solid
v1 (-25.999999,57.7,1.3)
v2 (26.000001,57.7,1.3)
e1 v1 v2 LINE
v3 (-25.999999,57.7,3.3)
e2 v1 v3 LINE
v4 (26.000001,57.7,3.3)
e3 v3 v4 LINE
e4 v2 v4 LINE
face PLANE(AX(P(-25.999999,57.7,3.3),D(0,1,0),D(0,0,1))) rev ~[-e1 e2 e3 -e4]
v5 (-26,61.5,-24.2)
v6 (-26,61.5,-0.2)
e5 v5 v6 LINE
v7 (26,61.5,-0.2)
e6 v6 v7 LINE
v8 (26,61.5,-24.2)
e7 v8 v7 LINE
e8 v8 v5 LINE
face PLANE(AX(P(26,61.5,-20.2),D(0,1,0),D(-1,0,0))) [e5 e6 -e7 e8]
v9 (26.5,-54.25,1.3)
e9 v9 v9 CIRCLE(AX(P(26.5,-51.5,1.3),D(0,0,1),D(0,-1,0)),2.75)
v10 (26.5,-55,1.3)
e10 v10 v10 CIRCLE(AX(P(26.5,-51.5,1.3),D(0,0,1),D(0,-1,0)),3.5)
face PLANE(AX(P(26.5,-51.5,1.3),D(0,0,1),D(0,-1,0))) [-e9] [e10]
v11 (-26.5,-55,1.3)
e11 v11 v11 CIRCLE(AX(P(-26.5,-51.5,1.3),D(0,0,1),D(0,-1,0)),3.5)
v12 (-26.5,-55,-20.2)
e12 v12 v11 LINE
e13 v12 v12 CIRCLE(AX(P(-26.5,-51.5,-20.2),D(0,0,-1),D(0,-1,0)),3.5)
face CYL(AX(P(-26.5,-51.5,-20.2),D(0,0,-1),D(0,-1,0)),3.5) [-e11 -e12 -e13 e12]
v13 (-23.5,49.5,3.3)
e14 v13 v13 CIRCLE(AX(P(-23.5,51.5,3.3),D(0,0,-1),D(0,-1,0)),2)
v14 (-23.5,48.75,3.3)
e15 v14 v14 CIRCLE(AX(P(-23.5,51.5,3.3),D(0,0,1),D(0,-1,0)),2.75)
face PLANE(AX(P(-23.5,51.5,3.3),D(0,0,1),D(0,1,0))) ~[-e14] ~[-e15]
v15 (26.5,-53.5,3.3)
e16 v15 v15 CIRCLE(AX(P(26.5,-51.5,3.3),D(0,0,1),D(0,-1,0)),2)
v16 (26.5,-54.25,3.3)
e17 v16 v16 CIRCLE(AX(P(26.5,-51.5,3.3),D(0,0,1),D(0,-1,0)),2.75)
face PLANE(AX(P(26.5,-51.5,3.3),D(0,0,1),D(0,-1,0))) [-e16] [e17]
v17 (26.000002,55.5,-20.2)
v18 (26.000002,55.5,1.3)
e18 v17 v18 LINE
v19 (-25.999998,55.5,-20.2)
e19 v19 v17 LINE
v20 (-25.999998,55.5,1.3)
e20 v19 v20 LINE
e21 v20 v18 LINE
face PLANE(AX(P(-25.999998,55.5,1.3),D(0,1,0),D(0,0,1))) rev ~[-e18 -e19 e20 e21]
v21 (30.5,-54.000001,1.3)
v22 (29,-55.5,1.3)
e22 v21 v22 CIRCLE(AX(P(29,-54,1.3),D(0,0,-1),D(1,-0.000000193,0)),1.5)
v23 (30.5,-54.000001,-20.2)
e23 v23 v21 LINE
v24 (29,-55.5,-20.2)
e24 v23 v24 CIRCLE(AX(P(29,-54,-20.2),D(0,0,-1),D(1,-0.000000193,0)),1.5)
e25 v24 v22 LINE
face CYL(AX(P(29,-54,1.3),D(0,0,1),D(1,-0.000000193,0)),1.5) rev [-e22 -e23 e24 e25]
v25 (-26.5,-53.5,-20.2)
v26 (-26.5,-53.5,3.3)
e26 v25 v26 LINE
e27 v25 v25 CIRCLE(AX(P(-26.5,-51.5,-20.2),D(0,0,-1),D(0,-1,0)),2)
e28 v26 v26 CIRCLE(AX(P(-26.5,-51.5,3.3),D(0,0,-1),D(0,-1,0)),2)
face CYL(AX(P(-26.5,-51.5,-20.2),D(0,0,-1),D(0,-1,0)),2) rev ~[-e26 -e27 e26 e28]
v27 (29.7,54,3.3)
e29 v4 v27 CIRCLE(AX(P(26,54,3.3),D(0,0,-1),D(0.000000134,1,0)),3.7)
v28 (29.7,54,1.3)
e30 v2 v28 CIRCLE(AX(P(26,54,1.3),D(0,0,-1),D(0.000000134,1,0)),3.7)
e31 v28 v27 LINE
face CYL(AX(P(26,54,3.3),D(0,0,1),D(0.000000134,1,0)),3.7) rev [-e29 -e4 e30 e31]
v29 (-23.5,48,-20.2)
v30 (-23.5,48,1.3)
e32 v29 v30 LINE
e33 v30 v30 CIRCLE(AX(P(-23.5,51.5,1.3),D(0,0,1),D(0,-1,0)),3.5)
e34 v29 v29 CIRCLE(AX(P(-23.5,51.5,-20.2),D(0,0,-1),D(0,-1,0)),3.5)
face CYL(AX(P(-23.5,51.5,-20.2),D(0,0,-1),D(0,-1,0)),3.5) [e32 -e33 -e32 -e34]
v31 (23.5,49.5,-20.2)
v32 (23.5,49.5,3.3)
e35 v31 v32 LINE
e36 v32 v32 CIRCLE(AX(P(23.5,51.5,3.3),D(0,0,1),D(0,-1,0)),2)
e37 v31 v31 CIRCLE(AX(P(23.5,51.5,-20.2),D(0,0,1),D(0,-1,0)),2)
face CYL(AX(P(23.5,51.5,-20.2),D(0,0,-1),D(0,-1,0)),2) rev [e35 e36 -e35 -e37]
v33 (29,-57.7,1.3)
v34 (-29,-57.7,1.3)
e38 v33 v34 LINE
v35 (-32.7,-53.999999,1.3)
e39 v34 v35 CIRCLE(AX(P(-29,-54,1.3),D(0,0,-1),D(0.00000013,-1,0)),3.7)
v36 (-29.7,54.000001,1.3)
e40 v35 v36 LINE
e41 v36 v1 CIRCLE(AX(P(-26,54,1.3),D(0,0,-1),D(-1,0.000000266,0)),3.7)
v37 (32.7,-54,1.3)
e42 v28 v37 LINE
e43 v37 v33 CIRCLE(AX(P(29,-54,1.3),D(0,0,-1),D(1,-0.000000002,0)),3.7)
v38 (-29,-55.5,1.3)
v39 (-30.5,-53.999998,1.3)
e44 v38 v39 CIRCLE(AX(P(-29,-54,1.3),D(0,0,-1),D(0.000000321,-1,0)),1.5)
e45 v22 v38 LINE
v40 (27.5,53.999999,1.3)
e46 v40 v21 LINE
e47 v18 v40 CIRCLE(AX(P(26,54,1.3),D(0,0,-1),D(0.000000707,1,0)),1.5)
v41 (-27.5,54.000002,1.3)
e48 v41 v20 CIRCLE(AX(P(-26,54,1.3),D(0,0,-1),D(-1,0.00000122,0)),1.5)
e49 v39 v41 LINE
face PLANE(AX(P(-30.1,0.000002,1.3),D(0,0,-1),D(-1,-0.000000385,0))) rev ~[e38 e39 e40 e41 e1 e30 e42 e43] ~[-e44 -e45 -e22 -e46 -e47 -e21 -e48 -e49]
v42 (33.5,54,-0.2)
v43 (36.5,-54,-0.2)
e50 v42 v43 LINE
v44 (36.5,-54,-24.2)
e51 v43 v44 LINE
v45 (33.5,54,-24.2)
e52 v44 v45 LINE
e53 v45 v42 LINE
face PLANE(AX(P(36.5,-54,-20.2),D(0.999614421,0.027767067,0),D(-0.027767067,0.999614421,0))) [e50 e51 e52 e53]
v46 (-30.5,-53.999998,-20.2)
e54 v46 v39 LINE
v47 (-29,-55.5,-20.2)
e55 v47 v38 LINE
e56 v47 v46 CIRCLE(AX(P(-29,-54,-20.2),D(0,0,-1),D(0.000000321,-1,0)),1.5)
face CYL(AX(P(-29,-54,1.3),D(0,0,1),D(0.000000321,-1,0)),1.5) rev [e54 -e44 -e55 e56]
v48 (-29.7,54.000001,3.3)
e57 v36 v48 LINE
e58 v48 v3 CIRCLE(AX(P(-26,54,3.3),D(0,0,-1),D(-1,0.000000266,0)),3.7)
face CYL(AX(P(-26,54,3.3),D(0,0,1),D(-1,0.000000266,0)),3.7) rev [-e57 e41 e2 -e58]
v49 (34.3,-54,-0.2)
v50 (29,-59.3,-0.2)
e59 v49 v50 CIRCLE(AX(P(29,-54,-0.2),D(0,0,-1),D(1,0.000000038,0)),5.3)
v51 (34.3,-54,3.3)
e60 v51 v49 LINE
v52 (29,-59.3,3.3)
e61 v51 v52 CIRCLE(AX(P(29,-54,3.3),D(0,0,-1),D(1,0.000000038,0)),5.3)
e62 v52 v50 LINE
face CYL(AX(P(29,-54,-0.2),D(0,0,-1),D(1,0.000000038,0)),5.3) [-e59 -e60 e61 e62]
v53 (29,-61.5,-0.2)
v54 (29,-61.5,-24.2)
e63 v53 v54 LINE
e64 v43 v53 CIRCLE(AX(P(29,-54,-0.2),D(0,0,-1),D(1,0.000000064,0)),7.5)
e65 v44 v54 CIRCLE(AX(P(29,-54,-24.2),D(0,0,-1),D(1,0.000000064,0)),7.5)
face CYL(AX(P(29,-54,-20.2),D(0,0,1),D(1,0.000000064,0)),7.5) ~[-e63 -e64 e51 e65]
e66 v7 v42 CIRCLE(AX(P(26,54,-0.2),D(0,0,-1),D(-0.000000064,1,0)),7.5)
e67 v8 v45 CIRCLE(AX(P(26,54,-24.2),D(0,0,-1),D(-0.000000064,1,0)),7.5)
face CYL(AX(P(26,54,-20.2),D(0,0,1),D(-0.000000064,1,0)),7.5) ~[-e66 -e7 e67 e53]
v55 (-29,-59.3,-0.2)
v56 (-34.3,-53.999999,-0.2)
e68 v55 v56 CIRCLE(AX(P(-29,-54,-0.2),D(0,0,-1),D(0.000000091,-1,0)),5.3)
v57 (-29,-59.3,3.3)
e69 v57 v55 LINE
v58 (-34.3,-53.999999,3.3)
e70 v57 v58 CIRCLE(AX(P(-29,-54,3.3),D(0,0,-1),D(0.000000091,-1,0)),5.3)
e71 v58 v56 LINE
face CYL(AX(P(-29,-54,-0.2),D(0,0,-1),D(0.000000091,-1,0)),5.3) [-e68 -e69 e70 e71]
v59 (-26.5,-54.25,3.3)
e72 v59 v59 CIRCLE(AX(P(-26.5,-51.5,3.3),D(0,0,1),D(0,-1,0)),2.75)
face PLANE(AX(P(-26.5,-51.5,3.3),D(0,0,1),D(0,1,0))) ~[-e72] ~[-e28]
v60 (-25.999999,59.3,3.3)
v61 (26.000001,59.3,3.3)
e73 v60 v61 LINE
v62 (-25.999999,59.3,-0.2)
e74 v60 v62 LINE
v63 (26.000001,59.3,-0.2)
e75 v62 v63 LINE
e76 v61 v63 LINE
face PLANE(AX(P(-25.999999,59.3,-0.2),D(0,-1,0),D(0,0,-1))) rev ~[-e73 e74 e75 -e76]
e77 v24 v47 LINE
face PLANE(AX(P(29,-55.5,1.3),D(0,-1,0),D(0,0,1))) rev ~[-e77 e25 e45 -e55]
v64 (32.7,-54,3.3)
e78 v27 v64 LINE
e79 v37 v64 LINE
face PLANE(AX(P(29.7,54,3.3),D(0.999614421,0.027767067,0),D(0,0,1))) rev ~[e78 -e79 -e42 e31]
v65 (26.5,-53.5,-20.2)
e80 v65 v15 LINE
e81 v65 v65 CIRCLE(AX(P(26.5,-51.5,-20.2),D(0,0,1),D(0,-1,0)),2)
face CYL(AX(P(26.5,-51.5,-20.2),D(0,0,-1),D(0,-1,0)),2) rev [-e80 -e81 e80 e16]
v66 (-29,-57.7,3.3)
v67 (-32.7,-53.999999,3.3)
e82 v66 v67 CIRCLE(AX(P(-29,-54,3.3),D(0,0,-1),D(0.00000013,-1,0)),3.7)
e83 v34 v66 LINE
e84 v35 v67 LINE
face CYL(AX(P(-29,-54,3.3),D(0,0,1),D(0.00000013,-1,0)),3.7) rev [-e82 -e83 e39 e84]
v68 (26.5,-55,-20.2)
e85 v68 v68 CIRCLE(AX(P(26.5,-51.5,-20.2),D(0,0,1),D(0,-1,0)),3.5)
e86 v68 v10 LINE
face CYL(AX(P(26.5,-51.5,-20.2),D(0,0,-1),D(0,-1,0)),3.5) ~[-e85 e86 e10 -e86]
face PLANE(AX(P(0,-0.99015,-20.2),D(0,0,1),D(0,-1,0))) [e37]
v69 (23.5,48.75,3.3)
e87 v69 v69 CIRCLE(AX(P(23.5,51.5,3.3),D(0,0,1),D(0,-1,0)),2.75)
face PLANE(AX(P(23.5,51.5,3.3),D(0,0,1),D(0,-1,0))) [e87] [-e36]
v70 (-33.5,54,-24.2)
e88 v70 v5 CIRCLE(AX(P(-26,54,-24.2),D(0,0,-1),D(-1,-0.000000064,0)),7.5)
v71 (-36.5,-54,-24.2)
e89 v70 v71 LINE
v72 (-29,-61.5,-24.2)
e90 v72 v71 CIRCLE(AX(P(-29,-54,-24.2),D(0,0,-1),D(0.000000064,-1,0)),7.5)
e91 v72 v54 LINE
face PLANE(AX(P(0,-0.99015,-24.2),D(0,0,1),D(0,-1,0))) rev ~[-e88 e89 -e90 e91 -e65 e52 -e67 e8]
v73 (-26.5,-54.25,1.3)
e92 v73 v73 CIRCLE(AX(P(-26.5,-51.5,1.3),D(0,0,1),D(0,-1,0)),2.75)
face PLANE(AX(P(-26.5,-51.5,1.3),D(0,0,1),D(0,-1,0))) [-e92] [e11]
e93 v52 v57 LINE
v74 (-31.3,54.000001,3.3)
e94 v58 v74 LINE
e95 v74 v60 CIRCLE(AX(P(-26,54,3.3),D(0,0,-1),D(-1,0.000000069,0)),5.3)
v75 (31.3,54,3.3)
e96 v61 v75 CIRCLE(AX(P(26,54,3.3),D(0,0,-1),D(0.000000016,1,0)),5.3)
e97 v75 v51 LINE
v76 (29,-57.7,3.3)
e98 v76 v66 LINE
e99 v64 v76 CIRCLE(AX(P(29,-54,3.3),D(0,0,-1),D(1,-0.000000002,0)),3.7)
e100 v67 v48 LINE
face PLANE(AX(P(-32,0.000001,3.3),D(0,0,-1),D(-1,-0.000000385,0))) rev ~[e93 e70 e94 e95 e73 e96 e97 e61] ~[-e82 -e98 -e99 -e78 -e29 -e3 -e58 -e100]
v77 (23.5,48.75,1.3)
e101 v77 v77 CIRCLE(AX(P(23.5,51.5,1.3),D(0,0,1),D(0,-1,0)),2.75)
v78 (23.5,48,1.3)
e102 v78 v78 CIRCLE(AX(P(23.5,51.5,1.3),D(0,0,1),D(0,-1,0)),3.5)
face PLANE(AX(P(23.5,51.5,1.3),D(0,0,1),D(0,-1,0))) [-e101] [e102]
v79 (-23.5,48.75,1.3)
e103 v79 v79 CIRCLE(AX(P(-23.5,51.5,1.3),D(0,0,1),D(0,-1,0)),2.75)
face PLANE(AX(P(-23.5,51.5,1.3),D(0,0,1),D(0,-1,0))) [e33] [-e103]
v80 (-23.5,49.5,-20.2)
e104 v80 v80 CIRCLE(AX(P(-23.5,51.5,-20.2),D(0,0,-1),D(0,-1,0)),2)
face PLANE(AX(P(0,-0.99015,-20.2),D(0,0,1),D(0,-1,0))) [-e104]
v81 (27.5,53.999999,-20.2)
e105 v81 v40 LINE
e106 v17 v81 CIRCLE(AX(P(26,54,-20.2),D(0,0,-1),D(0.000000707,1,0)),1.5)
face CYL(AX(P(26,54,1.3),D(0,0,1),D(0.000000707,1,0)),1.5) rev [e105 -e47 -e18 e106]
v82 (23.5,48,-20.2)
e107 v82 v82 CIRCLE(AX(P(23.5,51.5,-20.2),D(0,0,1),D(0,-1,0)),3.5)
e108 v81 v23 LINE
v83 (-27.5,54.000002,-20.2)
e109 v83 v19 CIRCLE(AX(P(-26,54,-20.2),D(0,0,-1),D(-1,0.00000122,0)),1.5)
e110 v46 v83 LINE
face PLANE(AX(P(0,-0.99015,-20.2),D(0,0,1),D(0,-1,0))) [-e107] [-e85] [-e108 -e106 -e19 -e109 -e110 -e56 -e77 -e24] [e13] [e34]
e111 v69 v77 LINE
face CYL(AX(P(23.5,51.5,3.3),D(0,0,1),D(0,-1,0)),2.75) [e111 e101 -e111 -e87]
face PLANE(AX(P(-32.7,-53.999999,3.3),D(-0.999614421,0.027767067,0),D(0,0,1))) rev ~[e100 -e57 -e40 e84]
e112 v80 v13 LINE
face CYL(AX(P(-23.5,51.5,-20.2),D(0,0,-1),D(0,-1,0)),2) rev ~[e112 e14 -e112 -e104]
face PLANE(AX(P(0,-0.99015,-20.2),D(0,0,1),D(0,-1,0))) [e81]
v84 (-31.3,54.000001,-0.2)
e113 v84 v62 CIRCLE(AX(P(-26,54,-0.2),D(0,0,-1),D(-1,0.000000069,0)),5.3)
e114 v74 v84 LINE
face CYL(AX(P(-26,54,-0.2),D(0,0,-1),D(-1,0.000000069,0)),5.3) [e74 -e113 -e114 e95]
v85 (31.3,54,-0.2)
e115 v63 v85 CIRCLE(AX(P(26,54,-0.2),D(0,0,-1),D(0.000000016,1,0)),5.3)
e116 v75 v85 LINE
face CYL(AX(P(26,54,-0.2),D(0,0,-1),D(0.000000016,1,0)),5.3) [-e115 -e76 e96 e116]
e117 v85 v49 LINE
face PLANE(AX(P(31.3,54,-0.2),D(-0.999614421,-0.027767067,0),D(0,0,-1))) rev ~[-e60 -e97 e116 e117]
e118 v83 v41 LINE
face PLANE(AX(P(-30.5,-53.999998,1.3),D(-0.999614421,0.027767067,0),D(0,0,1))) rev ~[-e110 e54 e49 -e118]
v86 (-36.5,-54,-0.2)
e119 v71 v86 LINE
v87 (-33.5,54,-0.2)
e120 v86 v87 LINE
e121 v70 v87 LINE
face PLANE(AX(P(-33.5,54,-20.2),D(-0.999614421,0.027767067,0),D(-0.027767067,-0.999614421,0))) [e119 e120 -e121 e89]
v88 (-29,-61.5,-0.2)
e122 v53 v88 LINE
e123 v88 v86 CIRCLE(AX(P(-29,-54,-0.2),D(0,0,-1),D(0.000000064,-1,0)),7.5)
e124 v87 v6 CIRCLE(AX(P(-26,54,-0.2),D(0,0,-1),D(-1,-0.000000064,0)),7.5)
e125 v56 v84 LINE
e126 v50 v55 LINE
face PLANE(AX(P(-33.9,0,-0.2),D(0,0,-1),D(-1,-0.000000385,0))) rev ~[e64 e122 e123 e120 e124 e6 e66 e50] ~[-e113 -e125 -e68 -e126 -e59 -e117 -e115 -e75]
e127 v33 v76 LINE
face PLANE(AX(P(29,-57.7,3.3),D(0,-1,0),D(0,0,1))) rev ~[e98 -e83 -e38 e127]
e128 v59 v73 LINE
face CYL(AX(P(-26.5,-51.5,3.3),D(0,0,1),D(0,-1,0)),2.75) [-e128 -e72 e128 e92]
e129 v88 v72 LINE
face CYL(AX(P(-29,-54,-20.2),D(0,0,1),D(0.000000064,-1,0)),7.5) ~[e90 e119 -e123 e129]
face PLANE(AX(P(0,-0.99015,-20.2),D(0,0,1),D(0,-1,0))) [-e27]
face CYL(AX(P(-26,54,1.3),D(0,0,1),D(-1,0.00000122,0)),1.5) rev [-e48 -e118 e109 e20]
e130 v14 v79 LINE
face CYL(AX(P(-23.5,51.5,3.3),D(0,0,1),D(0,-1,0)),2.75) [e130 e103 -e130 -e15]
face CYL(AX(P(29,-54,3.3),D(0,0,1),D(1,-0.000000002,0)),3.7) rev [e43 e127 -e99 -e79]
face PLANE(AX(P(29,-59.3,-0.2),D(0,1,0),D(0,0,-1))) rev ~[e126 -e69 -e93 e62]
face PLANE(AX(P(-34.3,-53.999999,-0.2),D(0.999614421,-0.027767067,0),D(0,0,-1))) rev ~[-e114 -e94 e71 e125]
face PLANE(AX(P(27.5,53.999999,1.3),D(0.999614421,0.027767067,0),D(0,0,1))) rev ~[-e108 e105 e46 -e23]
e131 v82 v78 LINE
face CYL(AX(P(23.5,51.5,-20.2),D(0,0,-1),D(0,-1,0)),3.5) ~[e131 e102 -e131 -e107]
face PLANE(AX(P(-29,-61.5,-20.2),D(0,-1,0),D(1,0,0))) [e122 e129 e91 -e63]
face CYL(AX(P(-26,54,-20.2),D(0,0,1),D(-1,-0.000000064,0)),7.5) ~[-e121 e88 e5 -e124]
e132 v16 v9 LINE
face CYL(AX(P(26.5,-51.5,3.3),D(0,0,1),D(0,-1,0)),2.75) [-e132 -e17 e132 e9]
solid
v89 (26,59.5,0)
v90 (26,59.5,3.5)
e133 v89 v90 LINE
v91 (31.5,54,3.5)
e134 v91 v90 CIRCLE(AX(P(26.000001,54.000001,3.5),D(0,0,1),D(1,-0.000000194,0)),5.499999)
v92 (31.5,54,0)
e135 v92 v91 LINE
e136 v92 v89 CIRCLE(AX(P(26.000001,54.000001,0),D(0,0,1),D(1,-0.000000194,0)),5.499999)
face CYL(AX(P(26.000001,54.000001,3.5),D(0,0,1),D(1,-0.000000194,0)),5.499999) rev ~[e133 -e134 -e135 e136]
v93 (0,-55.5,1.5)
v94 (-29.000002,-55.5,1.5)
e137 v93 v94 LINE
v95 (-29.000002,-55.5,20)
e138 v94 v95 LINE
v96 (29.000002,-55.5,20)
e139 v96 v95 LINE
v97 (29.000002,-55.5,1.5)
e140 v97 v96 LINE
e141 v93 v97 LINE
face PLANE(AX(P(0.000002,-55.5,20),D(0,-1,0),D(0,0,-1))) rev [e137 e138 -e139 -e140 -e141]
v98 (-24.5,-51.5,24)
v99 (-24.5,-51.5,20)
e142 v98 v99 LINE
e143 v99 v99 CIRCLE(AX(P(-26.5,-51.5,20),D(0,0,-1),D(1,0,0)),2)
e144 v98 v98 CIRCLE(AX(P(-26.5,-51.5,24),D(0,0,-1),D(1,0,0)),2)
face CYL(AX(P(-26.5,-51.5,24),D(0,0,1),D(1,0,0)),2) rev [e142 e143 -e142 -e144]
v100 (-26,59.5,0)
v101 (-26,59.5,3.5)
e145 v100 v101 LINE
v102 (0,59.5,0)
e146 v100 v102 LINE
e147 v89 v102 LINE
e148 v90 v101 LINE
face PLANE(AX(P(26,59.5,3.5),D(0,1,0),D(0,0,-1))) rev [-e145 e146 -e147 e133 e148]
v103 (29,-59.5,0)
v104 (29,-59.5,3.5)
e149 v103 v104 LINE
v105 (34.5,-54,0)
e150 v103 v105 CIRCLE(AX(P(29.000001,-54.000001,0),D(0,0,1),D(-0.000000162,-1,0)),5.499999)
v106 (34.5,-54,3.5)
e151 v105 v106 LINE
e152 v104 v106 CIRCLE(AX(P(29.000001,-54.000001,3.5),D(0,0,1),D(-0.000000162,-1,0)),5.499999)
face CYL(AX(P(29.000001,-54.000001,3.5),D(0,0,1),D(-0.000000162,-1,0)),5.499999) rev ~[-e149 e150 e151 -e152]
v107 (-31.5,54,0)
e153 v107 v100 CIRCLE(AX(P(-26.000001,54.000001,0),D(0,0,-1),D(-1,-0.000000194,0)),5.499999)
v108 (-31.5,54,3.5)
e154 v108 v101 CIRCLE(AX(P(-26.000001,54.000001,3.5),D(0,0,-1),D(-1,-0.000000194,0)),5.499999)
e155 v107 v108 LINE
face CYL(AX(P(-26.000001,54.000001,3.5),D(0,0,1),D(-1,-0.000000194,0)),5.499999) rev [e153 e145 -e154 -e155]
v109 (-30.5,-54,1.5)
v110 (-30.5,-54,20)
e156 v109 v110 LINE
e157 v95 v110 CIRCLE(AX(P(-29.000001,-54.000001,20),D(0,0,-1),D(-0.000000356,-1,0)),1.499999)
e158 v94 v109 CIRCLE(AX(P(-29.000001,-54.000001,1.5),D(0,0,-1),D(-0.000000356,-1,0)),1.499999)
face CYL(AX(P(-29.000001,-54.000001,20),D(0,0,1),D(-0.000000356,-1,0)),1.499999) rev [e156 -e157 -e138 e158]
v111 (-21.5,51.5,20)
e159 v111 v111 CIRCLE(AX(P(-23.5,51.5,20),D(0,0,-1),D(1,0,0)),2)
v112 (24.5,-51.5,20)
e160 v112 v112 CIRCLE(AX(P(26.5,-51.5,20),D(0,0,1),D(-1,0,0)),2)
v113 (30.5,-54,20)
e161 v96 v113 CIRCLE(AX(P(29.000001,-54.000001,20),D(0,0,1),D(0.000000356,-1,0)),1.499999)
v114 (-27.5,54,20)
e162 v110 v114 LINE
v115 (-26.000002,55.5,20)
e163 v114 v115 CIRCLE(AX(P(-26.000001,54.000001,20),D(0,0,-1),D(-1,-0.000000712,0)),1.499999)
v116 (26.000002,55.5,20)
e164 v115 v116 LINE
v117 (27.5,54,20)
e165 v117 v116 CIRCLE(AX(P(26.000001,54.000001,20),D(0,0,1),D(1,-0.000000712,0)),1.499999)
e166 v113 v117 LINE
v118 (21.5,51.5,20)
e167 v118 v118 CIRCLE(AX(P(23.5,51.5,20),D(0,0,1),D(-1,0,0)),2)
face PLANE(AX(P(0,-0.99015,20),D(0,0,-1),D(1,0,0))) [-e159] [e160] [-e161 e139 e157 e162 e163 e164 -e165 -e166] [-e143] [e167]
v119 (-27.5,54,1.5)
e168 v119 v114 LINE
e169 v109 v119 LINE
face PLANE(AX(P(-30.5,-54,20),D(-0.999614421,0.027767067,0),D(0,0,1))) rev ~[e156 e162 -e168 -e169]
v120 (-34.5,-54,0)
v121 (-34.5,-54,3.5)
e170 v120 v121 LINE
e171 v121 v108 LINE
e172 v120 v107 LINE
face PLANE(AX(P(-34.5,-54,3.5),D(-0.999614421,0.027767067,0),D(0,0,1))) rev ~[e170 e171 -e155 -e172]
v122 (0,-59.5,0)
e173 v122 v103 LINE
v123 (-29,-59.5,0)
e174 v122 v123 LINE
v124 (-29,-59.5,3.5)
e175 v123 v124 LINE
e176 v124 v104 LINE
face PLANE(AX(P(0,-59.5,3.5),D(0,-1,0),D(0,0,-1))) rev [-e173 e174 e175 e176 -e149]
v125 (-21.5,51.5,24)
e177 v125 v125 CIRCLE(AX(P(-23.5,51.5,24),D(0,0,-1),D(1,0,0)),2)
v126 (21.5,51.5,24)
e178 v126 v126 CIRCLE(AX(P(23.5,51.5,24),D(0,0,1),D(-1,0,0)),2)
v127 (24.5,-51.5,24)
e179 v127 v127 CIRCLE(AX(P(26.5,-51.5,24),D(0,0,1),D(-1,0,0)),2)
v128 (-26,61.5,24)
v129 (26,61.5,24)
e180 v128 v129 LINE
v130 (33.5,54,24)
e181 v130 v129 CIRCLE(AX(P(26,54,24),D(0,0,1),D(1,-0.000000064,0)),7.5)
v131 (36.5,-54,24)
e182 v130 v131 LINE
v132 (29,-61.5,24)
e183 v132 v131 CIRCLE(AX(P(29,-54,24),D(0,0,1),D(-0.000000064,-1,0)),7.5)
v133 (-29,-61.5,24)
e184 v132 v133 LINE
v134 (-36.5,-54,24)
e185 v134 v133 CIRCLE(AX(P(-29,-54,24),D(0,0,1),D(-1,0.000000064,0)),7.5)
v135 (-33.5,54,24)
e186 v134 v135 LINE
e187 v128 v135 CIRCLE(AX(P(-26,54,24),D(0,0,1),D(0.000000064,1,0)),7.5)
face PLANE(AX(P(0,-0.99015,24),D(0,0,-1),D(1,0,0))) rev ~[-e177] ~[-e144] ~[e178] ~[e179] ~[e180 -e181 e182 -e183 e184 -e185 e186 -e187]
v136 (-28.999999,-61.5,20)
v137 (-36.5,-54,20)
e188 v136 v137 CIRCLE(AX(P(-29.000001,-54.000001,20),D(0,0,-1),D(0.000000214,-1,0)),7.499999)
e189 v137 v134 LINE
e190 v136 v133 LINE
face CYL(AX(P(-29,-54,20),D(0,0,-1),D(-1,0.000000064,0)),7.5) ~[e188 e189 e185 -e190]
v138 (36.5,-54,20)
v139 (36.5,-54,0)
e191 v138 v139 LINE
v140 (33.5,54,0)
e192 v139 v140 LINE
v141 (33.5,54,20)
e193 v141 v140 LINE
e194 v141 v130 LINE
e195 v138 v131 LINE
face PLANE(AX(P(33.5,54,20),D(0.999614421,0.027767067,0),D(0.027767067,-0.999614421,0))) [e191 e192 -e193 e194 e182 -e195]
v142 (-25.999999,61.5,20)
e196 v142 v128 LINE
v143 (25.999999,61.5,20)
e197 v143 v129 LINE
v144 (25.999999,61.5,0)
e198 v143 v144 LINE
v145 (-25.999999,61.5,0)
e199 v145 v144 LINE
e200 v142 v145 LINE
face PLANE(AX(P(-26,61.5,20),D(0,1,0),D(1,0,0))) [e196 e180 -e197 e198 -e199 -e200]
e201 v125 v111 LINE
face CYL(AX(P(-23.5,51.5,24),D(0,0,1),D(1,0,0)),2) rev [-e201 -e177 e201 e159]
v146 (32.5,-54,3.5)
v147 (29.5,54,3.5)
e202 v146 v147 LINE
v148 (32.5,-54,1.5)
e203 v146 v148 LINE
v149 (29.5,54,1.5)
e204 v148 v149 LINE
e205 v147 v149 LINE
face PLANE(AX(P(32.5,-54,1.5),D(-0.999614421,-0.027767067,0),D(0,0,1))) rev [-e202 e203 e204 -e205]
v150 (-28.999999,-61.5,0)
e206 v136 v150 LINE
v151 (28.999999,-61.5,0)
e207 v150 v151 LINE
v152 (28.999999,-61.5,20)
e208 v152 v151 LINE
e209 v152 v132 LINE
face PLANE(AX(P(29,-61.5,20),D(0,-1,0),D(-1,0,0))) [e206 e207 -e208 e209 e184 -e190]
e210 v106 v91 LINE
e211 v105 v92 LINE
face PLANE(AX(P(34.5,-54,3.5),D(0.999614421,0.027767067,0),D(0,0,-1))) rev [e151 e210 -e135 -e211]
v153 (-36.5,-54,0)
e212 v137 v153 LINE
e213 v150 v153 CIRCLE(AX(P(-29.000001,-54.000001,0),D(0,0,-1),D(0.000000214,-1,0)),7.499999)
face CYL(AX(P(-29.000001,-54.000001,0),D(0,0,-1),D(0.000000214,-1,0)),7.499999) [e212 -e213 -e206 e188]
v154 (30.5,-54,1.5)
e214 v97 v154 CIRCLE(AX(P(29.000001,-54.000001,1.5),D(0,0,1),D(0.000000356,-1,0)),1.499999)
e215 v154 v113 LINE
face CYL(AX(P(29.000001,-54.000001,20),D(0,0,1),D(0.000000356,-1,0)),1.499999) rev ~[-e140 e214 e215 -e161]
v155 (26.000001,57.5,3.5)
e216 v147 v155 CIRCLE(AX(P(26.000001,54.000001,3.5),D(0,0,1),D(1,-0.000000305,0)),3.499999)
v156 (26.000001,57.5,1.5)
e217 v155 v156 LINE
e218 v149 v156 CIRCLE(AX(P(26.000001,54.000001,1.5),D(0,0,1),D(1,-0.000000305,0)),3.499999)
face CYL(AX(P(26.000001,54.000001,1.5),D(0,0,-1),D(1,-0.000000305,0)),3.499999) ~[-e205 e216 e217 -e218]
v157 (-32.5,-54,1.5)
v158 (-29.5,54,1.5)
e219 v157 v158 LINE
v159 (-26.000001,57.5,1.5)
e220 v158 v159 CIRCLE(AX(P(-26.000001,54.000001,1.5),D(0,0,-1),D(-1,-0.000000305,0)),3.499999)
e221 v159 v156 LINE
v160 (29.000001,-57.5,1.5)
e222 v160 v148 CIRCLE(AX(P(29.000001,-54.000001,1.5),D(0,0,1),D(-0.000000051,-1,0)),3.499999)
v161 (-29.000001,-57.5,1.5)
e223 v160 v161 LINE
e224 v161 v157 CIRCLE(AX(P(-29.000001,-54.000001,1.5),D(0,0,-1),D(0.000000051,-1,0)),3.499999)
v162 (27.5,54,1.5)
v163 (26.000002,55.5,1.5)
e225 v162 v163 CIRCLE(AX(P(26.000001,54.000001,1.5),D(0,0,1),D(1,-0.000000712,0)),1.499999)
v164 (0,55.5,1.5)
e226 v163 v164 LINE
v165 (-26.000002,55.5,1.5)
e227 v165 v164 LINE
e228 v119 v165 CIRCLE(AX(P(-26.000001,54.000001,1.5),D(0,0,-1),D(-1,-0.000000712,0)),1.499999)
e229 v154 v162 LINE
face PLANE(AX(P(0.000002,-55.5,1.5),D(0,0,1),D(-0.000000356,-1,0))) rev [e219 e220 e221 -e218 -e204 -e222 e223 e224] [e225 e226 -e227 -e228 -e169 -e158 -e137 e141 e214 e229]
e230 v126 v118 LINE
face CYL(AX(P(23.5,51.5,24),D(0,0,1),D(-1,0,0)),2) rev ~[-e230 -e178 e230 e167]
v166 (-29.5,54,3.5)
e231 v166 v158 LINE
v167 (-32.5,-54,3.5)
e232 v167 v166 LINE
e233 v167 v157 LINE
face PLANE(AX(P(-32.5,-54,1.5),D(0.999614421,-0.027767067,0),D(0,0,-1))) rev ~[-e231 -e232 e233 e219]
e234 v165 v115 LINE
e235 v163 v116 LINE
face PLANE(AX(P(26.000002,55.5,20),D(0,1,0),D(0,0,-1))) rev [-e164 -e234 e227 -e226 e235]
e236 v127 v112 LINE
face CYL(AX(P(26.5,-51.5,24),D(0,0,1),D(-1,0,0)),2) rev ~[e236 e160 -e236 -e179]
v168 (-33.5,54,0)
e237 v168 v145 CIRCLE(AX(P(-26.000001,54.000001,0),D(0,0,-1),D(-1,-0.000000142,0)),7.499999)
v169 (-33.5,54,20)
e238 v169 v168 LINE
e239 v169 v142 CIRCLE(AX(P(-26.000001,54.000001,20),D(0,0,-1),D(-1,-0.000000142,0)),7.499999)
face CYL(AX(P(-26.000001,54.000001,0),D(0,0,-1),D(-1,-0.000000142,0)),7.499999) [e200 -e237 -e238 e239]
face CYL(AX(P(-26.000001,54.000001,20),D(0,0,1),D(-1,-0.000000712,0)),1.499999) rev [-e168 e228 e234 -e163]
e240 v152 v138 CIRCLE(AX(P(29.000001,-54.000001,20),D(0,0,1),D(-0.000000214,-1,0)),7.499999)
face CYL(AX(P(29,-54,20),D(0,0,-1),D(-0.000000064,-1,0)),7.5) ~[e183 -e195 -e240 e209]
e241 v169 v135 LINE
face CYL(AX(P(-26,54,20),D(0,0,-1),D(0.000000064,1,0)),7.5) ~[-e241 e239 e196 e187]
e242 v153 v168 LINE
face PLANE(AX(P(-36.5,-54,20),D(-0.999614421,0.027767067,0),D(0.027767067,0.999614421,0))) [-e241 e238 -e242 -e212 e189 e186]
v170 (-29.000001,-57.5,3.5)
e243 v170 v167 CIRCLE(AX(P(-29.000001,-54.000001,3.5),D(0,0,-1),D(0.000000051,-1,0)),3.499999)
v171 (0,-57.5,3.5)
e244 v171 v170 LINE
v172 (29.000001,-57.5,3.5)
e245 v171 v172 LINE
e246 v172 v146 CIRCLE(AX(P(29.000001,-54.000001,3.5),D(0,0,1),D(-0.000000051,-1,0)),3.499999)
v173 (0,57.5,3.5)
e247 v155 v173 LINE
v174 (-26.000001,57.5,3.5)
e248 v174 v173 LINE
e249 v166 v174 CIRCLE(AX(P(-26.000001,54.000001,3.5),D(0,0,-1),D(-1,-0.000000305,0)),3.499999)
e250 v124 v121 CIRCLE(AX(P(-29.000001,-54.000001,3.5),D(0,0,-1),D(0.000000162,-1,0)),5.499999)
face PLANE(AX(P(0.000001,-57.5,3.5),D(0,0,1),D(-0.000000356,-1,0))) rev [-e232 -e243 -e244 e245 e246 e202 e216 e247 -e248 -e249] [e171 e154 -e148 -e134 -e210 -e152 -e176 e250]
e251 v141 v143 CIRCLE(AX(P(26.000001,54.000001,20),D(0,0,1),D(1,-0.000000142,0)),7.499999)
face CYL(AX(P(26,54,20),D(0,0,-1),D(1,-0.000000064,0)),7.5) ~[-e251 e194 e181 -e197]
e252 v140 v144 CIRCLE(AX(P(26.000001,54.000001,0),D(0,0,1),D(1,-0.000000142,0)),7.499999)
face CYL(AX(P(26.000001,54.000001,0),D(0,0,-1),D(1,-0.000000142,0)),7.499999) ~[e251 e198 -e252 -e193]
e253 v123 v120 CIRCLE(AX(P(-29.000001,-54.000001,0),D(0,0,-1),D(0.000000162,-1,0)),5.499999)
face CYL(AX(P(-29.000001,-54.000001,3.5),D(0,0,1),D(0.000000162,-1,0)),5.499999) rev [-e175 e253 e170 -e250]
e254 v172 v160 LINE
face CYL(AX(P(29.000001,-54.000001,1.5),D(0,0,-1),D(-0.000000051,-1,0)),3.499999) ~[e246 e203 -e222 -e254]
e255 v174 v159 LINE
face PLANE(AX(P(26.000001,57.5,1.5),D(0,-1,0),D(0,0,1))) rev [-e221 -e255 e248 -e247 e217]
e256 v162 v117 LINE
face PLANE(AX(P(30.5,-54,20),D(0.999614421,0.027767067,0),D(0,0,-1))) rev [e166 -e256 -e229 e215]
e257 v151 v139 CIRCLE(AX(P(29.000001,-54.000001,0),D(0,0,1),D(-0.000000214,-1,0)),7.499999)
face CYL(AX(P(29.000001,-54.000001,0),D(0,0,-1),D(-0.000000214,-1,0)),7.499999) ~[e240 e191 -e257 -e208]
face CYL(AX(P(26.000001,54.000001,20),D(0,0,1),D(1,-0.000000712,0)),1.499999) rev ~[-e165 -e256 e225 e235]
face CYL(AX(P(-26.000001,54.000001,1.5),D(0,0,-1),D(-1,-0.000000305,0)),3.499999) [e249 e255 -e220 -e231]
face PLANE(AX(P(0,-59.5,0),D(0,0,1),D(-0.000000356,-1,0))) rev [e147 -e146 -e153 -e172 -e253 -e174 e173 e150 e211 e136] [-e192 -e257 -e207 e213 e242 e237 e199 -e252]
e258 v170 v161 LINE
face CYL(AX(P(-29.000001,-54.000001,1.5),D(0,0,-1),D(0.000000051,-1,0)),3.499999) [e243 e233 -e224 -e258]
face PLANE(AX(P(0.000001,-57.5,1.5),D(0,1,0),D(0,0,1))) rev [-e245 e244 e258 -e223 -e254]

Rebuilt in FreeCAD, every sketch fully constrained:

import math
import FreeCAD as App
import Part
import Sketcher
from FreeCAD import Vector
Q = App.Units.Quantity

doc = App.newDocument("Part")
params = doc.addObject("Spreadsheet::Sheet", "Params")
for row, (alias, value) in enumerate([
    ("sketch1_width", "2 mm"),
    ("sketch1_height", "20 mm"),
    ("sketch1_height2", "3.5 mm"),
    ("sketch2_radius", "5.999999 mm"),
    ("sketch2_width", "29 mm"),
    ("sketch2_width2", "26 mm"),
    ("sketch3_radius", "7.5 mm"),
    ("sketch3_width", "52 mm"),
    ("sketch3_width2", "58 mm"),
    ("pad1_length", "4 mm"),
    ("sketch4_diameter", "4 mm"),
    ("pocket1_length", "4 mm"),
    ("sketch5_width", "6 mm"),
    ("sketch5_height", "20 mm"),
    ("sketch5_height2", "2 mm"),
    ("sketch5_width2", "2.2 mm"),
    ("sketch5_height3", "21.5 mm"),
    ("sketch6_radius", "7.5 mm"),
    ("sketch6_width", "52 mm"),
    ("sketch6_width2", "58 mm"),
    ("sketch7_radius", "7.5 mm"),
    ("sketch7_width", "58 mm"),
    ("sketch7_width2", "52 mm"),
    ("pad2_length", "4 mm"),
    ("sketch8_diameter", "7 mm"),
    ("sketch8_diameter2", "4 mm"),
    ("pad3_length", "23.5 mm"),
    ("sketch9_diameter", "7 mm"),
    ("sketch9_diameter2", "5.5 mm"),
    ("pocket2_length", "2 mm"),
], start=1):
    params.set(f"A{row}", alias)
    params.set(f"B{row}", "=" + value)
    params.setAlias(f"B{row}", alias)

body = doc.addObject("PartDesign::Body", "Body")

# Sketch on XZ plane
sketch1 = body.newObject("Sketcher::SketchObject", "Sketch")
sketch1.AttachmentSupport = (doc.getObject("XZ_Plane"), [""])
sketch1.MapMode = "FlatFace"
sketch1.addGeometry(Part.LineSegment(Vector(-35, 20, 0), Vector(-35, 0, 0)), False)
sketch1.addGeometry(Part.LineSegment(Vector(-35, 0, 0), Vector(-33, 0, 0)), False)
sketch1.addGeometry(Part.LineSegment(Vector(-33, 0, 0), Vector(-33, 3.5, 0)), False)
sketch1.addGeometry(Part.LineSegment(Vector(-33, 3.5, 0), Vector(-31, 3.5, 0)), False)
sketch1.addGeometry(Part.LineSegment(Vector(-31, 3.5, 0), Vector(-31, 1.5, 0)), False)
sketch1.addGeometry(Part.LineSegment(Vector(-31, 1.5, 0), Vector(-29, 1.5, 0)), False)
sketch1.addGeometry(Part.LineSegment(Vector(-29, 1.5, 0), Vector(-29, 20, 0)), False)
sketch1.addGeometry(Part.LineSegment(Vector(-29, 20, 0), Vector(-35, 20, 0)), False)
sketch1.addConstraint(Sketcher.Constraint("Coincident", 0, 2, 1, 1))
sketch1.addConstraint(Sketcher.Constraint("Coincident", 1, 2, 2, 1))
sketch1.addConstraint(Sketcher.Constraint("Coincident", 2, 2, 3, 1))
sketch1.addConstraint(Sketcher.Constraint("Coincident", 3, 2, 4, 1))
sketch1.addConstraint(Sketcher.Constraint("Coincident", 4, 2, 5, 1))
sketch1.addConstraint(Sketcher.Constraint("Coincident", 5, 2, 6, 1))
sketch1.addConstraint(Sketcher.Constraint("Coincident", 6, 2, 7, 1))
sketch1.addConstraint(Sketcher.Constraint("Coincident", 7, 2, 0, 1))
sketch1.addConstraint(Sketcher.Constraint("Vertical", 0))
sketch1.addConstraint(Sketcher.Constraint("Horizontal", 1))
sketch1.addConstraint(Sketcher.Constraint("Vertical", 2))
sketch1.addConstraint(Sketcher.Constraint("Horizontal", 3))
sketch1.addConstraint(Sketcher.Constraint("Vertical", 4))
sketch1.addConstraint(Sketcher.Constraint("Horizontal", 5))
sketch1.addConstraint(Sketcher.Constraint("Vertical", 6))
sketch1.addConstraint(Sketcher.Constraint("Horizontal", 7))
sketch1.addConstraint(Sketcher.Constraint("PointOnObject", 0, 2, -1))
sketch1.addConstraint(Sketcher.Constraint("Equal", 1, 3))
sketch1.addConstraint(Sketcher.Constraint("Equal", 3, 5))
sketch1.addConstraint(Sketcher.Constraint("Equal", 5, 4))
sketch1.addConstraint(Sketcher.Constraint("DistanceX", 1, 1, 1, 2, Q("2 mm")))
sketch1.addConstraint(Sketcher.Constraint("DistanceY", 0, 2, 0, 1, Q("20 mm")))
sketch1.addConstraint(Sketcher.Constraint("DistanceY", 2, 1, 2, 2, Q("3.5 mm")))
sketch1.addConstraint(Sketcher.Constraint("DistanceX", 0, 2, -1, 1, Q("35 mm")))
sketch1.setExpression("Constraints[20]", "Params.sketch1_width")
sketch1.setExpression("Constraints[21]", "Params.sketch1_height")
sketch1.setExpression("Constraints[22]", "Params.sketch1_height2")

# Sketch on XY plane
sketch2 = body.newObject("Sketcher::SketchObject", "Sketch001")
sketch2.AttachmentSupport = (doc.getObject("XY_Plane"), [""])
sketch2.MapMode = "FlatFace"
sketch2.addGeometry(Part.LineSegment(Vector(0, -60, 0), Vector(-29, -60, 0)), False)
sketch2.addGeometry(Part.ArcOfCircle(Part.Circle(Vector(-29, -54, 0), Vector(0, 0, 1), 6), math.radians(180), math.radians(270)), False)
sketch2.addGeometry(Part.LineSegment(Vector(-35, -54, 0), Vector(-32, 54, 0)), False)
sketch2.addGeometry(Part.ArcOfCircle(Part.Circle(Vector(-26, 54, 0), Vector(0, 0, 1), 6), math.radians(90), math.radians(180)), False)
sketch2.addGeometry(Part.LineSegment(Vector(-26, 60, 0), Vector(0, 60, 0)), False)
sketch2.addConstraint(Sketcher.Constraint("Tangent", 0, 2, 1, 2))
sketch2.addConstraint(Sketcher.Constraint("Coincident", 1, 1, 2, 1))
sketch2.addConstraint(Sketcher.Constraint("Coincident", 2, 2, 3, 2))
sketch2.addConstraint(Sketcher.Constraint("Tangent", 3, 1, 4, 1))
sketch2.addConstraint(Sketcher.Constraint("Horizontal", 0))
sketch2.addConstraint(Sketcher.Constraint("Horizontal", 4))
sketch2.addConstraint(Sketcher.Constraint("Equal", 1, 3))
sketch2.addConstraint(Sketcher.Constraint("Symmetric", 0, 1, 4, 2, -1, 1))
sketch2.addConstraint(Sketcher.Constraint("PointOnObject", 0, 1, -2))
sketch2.addConstraint(Sketcher.Constraint("Horizontal", 3, 3, 2, 2))
sketch2.addConstraint(Sketcher.Constraint("Radius", 1, Q("5.999999 mm")))
sketch2.addConstraint(Sketcher.Constraint("DistanceX", 0, 2, 0, 1, Q("29 mm")))
sketch2.addConstraint(Sketcher.Constraint("DistanceX", 4, 1, 4, 2, Q("26 mm")))
sketch2.addConstraint(Sketcher.Constraint("DistanceY", 1, 3, -1, 1, Q("54.000001 mm")))
sketch2.addConstraint(Sketcher.Constraint("DistanceY", 1, 1, -1, 1, Q("54 mm")))
sketch2.setExpression("Constraints[10]", "Params.sketch2_radius")
sketch2.setExpression("Constraints[11]", "Params.sketch2_width")
sketch2.setExpression("Constraints[12]", "Params.sketch2_width2")
doc.recompute()

additivepipe = body.newObject("PartDesign::AdditivePipe", "AdditivePipe")
additivepipe.Profile = sketch1
additivepipe.Spine = (sketch2, ["Edge1", "Edge2", "Edge3", "Edge4", "Edge5"])
doc.recompute()

mirrored = body.newObject("PartDesign::Mirrored", "Mirrored")
mirrored.Originals = [additivepipe]
mirrored.MirrorPlane = (doc.getObject("YZ_Plane"), [""])
body.Tip = mirrored

# Sketch on XY plane
sketch3 = body.newObject("Sketcher::SketchObject", "Sketch002")
sketch3.AttachmentSupport = (doc.getObject("XY_Plane"), [""])
sketch3.MapMode = "FlatFace"
sketch3.AttachmentOffset = App.Placement(Vector(0, 0, 20), App.Rotation())
sketch3.addGeometry(Part.LineSegment(Vector(36, -54, 0), Vector(34, 54, 0)), False)
sketch3.addGeometry(Part.ArcOfCircle(Part.Circle(Vector(26, 54, 0), Vector(0, 0, 1), 7), math.radians(0), math.radians(90)), False)
sketch3.addGeometry(Part.LineSegment(Vector(26, 62, 0), Vector(-26, 62, 0)), False)
sketch3.addGeometry(Part.ArcOfCircle(Part.Circle(Vector(-26, 54, 0), Vector(0, 0, 1), 7), math.radians(90), math.radians(180)), False)
sketch3.addGeometry(Part.LineSegment(Vector(-34, 54, 0), Vector(-36, -54, 0)), False)
sketch3.addGeometry(Part.ArcOfCircle(Part.Circle(Vector(-29, -54, 0), Vector(0, 0, 1), 7), math.radians(180), math.radians(270)), False)
sketch3.addGeometry(Part.LineSegment(Vector(-29, -62, 0), Vector(29, -62, 0)), False)
sketch3.addGeometry(Part.ArcOfCircle(Part.Circle(Vector(29, -54, 0), Vector(0, 0, 1), 7), math.radians(-90), math.radians(0)), False)
sketch3.addConstraint(Sketcher.Constraint("Coincident", 0, 2, 1, 1))
sketch3.addConstraint(Sketcher.Constraint("Tangent", 1, 2, 2, 1))
sketch3.addConstraint(Sketcher.Constraint("Tangent", 2, 2, 3, 1))
sketch3.addConstraint(Sketcher.Constraint("Coincident", 3, 2, 4, 1))
sketch3.addConstraint(Sketcher.Constraint("Coincident", 4, 2, 5, 1))
sketch3.addConstraint(Sketcher.Constraint("Tangent", 5, 2, 6, 1))
sketch3.addConstraint(Sketcher.Constraint("Tangent", 6, 2, 7, 1))
sketch3.addConstraint(Sketcher.Constraint("Coincident", 7, 2, 0, 1))
sketch3.addConstraint(Sketcher.Constraint("Horizontal", 2))
sketch3.addConstraint(Sketcher.Constraint("Horizontal", 6))
sketch3.addConstraint(Sketcher.Constraint("Equal", 1, 3))
sketch3.addConstraint(Sketcher.Constraint("Equal", 3, 5))
sketch3.addConstraint(Sketcher.Constraint("Equal", 5, 7))
sketch3.addConstraint(Sketcher.Constraint("Symmetric", 0, 2, 3, 2, -2))
sketch3.addConstraint(Sketcher.Constraint("Symmetric", 4, 2, 7, 2, -2))
sketch3.addConstraint(Sketcher.Constraint("Horizontal", 3, 3, 0, 2))
sketch3.addConstraint(Sketcher.Constraint("Horizontal", 7, 3, 4, 2))
sketch3.addConstraint(Sketcher.Constraint("Radius", 1, Q("7.5 mm")))
sketch3.addConstraint(Sketcher.Constraint("DistanceX", 2, 2, 2, 1, Q("52 mm")))
sketch3.addConstraint(Sketcher.Constraint("DistanceX", 6, 1, 6, 2, Q("58 mm")))
sketch3.addConstraint(Sketcher.Constraint("DistanceY", -1, 1, 1, 3, Q("54 mm")))
sketch3.addConstraint(Sketcher.Constraint("DistanceY", 5, 3, -1, 1, Q("54 mm")))
sketch3.setExpression("Constraints[17]", "Params.sketch3_radius")
sketch3.setExpression("Constraints[18]", "Params.sketch3_width")
sketch3.setExpression("Constraints[19]", "Params.sketch3_width2")
pad1 = body.newObject("PartDesign::Pad", "Pad")
pad1.Profile = sketch3
pad1.setExpression("Length", "Params.pad1_length")

# Sketch on XY plane
sketch4 = body.newObject("Sketcher::SketchObject", "Sketch003")
sketch4.AttachmentSupport = (doc.getObject("XY_Plane"), [""])
sketch4.MapMode = "FlatFace"
sketch4.AttachmentOffset = App.Placement(Vector(0, 0, 24), App.Rotation())
sketch4.addGeometry(Part.Circle(Vector(23.5, 51.5, 0), Vector(0, 0, 1), 2), False)
sketch4.addGeometry(Part.Circle(Vector(26.5, -51.5, 0), Vector(0, 0, 1), 2), False)
sketch4.addConstraint(Sketcher.Constraint("Equal", 0, 1))
sketch4.addConstraint(Sketcher.Constraint("Diameter", 0, Q("4 mm")))
sketch4.addConstraint(Sketcher.Constraint("DistanceX", 0, 3, 1, 3, Q("3 mm")))
sketch4.addConstraint(Sketcher.Constraint("DistanceY", 1, 3, 0, 3, Q("103 mm")))
sketch4.addConstraint(Sketcher.Constraint("DistanceX", -1, 1, 0, 3, Q("23.5 mm")))
sketch4.addConstraint(Sketcher.Constraint("DistanceY", -1, 1, 0, 3, Q("51.5 mm")))
sketch4.setExpression("Constraints[1]", "Params.sketch4_diameter")
pocket1 = body.newObject("PartDesign::Pocket", "Pocket")
pocket1.Profile = sketch4
pocket1.setExpression("Length", "Params.pocket1_length")
doc.recompute()

mirrored2 = body.newObject("PartDesign::Mirrored", "Mirrored001")
mirrored2.Originals = [pocket1]
mirrored2.MirrorPlane = (doc.getObject("YZ_Plane"), [""])
body.Tip = mirrored2
body2 = doc.addObject("PartDesign::Body", "Body001")

# Sketch on YZ plane
sketch5 = body2.newObject("Sketcher::SketchObject", "Sketch004")
sketch5.AttachmentSupport = (doc.getObject("YZ_Plane001"), [""])
sketch5.MapMode = "FlatFace"
sketch5.addGeometry(Part.LineSegment(Vector(-59.3, -0.2, 0), Vector(-61.5, -0.2, 0)), False)
sketch5.addGeometry(Part.LineSegment(Vector(-61.5, -0.2, 0), Vector(-61.5, -20.2, 0)), False)
sketch5.addGeometry(Part.LineSegment(Vector(-61.5, -20.2, 0), Vector(-55.5, -20.2, 0)), False)
sketch5.addGeometry(Part.LineSegment(Vector(-55.5, -20.2, 0), Vector(-55.5, 1.3, 0)), False)
sketch5.addGeometry(Part.LineSegment(Vector(-55.5, 1.3, 0), Vector(-57.7, 1.3, 0)), False)
sketch5.addGeometry(Part.LineSegment(Vector(-57.7, 1.3, 0), Vector(-57.7, 3.3, 0)), False)
sketch5.addGeometry(Part.LineSegment(Vector(-57.7, 3.3, 0), Vector(-59.3, 3.3, 0)), False)
sketch5.addGeometry(Part.LineSegment(Vector(-59.3, 3.3, 0), Vector(-59.3, -0.2, 0)), False)
sketch5.addConstraint(Sketcher.Constraint("Coincident", 0, 2, 1, 1))
sketch5.addConstraint(Sketcher.Constraint("Coincident", 1, 2, 2, 1))
sketch5.addConstraint(Sketcher.Constraint("Coincident", 2, 2, 3, 1))
sketch5.addConstraint(Sketcher.Constraint("Coincident", 3, 2, 4, 1))
sketch5.addConstraint(Sketcher.Constraint("Coincident", 4, 2, 5, 1))
sketch5.addConstraint(Sketcher.Constraint("Coincident", 5, 2, 6, 1))
sketch5.addConstraint(Sketcher.Constraint("Coincident", 6, 2, 7, 1))
sketch5.addConstraint(Sketcher.Constraint("Coincident", 7, 2, 0, 1))
sketch5.addConstraint(Sketcher.Constraint("Horizontal", 0))
sketch5.addConstraint(Sketcher.Constraint("Vertical", 1))
sketch5.addConstraint(Sketcher.Constraint("Horizontal", 2))
sketch5.addConstraint(Sketcher.Constraint("Vertical", 3))
sketch5.addConstraint(Sketcher.Constraint("Horizontal", 4))
sketch5.addConstraint(Sketcher.Constraint("Vertical", 5))
sketch5.addConstraint(Sketcher.Constraint("Horizontal", 6))
sketch5.addConstraint(Sketcher.Constraint("Vertical", 7))
sketch5.addConstraint(Sketcher.Constraint("Equal", 0, 4))
sketch5.addConstraint(Sketcher.Constraint("DistanceX", 2, 1, 2, 2, Q("6 mm")))
sketch5.addConstraint(Sketcher.Constraint("DistanceY", 1, 2, 1, 1, Q("20 mm")))
sketch5.addConstraint(Sketcher.Constraint("DistanceY", 5, 1, 5, 2, Q("2 mm")))
sketch5.addConstraint(Sketcher.Constraint("DistanceX", 0, 2, 0, 1, Q("2.2 mm")))
sketch5.addConstraint(Sketcher.Constraint("DistanceY", 3, 1, 3, 2, Q("21.5 mm")))
sketch5.addConstraint(Sketcher.Constraint("DistanceX", 0, 2, -1, 1, Q("61.5 mm")))
sketch5.addConstraint(Sketcher.Constraint("DistanceY", 0, 2, -1, 1, Q("0.2 mm")))
sketch5.setExpression("Constraints[17]", "Params.sketch5_width")
sketch5.setExpression("Constraints[18]", "Params.sketch5_height")
sketch5.setExpression("Constraints[19]", "Params.sketch5_height2")
sketch5.setExpression("Constraints[20]", "Params.sketch5_width2")
sketch5.setExpression("Constraints[21]", "Params.sketch5_height3")

# Sketch on XY plane
sketch6 = body2.newObject("Sketcher::SketchObject", "Sketch005")
sketch6.AttachmentSupport = (doc.getObject("XY_Plane001"), [""])
sketch6.MapMode = "FlatFace"
sketch6.addGeometry(Part.LineSegment(Vector(-36, -54, 0), Vector(-34, 54, 0)), False)
sketch6.addGeometry(Part.ArcOfCircle(Part.Circle(Vector(-26, 54, 0), Vector(0, 0, 1), 7), math.radians(90), math.radians(180)), False)
sketch6.addGeometry(Part.LineSegment(Vector(-26, 62, 0), Vector(26, 62, 0)), False)
sketch6.addGeometry(Part.ArcOfCircle(Part.Circle(Vector(26, 54, 0), Vector(0, 0, 1), 7), math.radians(0), math.radians(90)), False)
sketch6.addGeometry(Part.LineSegment(Vector(34, 54, 0), Vector(36, -54, 0)), False)
sketch6.addGeometry(Part.ArcOfCircle(Part.Circle(Vector(29, -54, 0), Vector(0, 0, 1), 7), math.radians(-90), math.radians(0)), False)
sketch6.addGeometry(Part.LineSegment(Vector(29, -62, 0), Vector(-29, -62, 0)), False)
sketch6.addGeometry(Part.ArcOfCircle(Part.Circle(Vector(-29, -54, 0), Vector(0, 0, 1), 7), math.radians(180), math.radians(270)), False)
sketch6.addConstraint(Sketcher.Constraint("Coincident", 0, 2, 1, 2))
sketch6.addConstraint(Sketcher.Constraint("Tangent", 1, 1, 2, 1))
sketch6.addConstraint(Sketcher.Constraint("Tangent", 2, 2, 3, 2))
sketch6.addConstraint(Sketcher.Constraint("Coincident", 3, 1, 4, 1))
sketch6.addConstraint(Sketcher.Constraint("Coincident", 4, 2, 5, 2))
sketch6.addConstraint(Sketcher.Constraint("Tangent", 5, 1, 6, 1))
sketch6.addConstraint(Sketcher.Constraint("Tangent", 6, 2, 7, 2))
sketch6.addConstraint(Sketcher.Constraint("Coincident", 7, 1, 0, 1))
sketch6.addConstraint(Sketcher.Constraint("Horizontal", 2))
sketch6.addConstraint(Sketcher.Constraint("Horizontal", 6))
sketch6.addConstraint(Sketcher.Constraint("Equal", 1, 3))
sketch6.addConstraint(Sketcher.Constraint("Equal", 3, 5))
sketch6.addConstraint(Sketcher.Constraint("Equal", 5, 7))
sketch6.addConstraint(Sketcher.Constraint("Symmetric", 0, 2, 3, 1, -2))
sketch6.addConstraint(Sketcher.Constraint("Symmetric", 4, 2, 7, 1, -2))
sketch6.addConstraint(Sketcher.Constraint("Horizontal", 3, 3, 0, 2))
sketch6.addConstraint(Sketcher.Constraint("Horizontal", 7, 3, 4, 2))
sketch6.addConstraint(Sketcher.Constraint("Radius", 1, Q("7.5 mm")))
sketch6.addConstraint(Sketcher.Constraint("DistanceX", 2, 1, 2, 2, Q("52 mm")))
sketch6.addConstraint(Sketcher.Constraint("DistanceX", 6, 2, 6, 1, Q("58 mm")))
sketch6.addConstraint(Sketcher.Constraint("DistanceY", -1, 1, 1, 3, Q("54 mm")))
sketch6.addConstraint(Sketcher.Constraint("DistanceY", 5, 3, -1, 1, Q("54 mm")))
sketch6.setExpression("Constraints[17]", "Params.sketch6_radius")
sketch6.setExpression("Constraints[18]", "Params.sketch6_width")
sketch6.setExpression("Constraints[19]", "Params.sketch6_width2")
doc.recompute()

additivepipe2 = body2.newObject("PartDesign::AdditivePipe", "AdditivePipe001")
additivepipe2.Profile = sketch5
additivepipe2.Spine = (sketch6, ["Edge1", "Edge2", "Edge3", "Edge4", "Edge5", "Edge6", "Edge7", "Edge8"])

# Sketch on XY plane
sketch7 = body2.newObject("Sketcher::SketchObject", "Sketch006")
sketch7.AttachmentSupport = (doc.getObject("XY_Plane001"), [""])
sketch7.MapMode = "FlatFace"
sketch7.AttachmentOffset = App.Placement(Vector(0, 0, -20.2), App.Rotation())
sketch7.addGeometry(Part.LineSegment(Vector(34, 54, 0), Vector(36, -54, 0)), False)
sketch7.addGeometry(Part.ArcOfCircle(Part.Circle(Vector(29, -54, 0), Vector(0, 0, 1), 7), math.radians(-90), math.radians(0)), False)
sketch7.addGeometry(Part.LineSegment(Vector(29, -62, 0), Vector(-29, -62, 0)), False)
sketch7.addGeometry(Part.ArcOfCircle(Part.Circle(Vector(-29, -54, 0), Vector(0, 0, 1), 7), math.radians(180), math.radians(270)), False)
sketch7.addGeometry(Part.LineSegment(Vector(-36, -54, 0), Vector(-34, 54, 0)), False)
sketch7.addGeometry(Part.ArcOfCircle(Part.Circle(Vector(-26, 54, 0), Vector(0, 0, 1), 7), math.radians(90), math.radians(180)), False)
sketch7.addGeometry(Part.LineSegment(Vector(-26, 62, 0), Vector(26, 62, 0)), False)
sketch7.addGeometry(Part.ArcOfCircle(Part.Circle(Vector(26, 54, 0), Vector(0, 0, 1), 7), math.radians(0), math.radians(90)), False)
sketch7.addConstraint(Sketcher.Constraint("Coincident", 0, 2, 1, 2))
sketch7.addConstraint(Sketcher.Constraint("Tangent", 1, 1, 2, 1))
sketch7.addConstraint(Sketcher.Constraint("Tangent", 2, 2, 3, 2))
sketch7.addConstraint(Sketcher.Constraint("Coincident", 3, 1, 4, 1))
sketch7.addConstraint(Sketcher.Constraint("Coincident", 4, 2, 5, 2))
sketch7.addConstraint(Sketcher.Constraint("Tangent", 5, 1, 6, 1))
sketch7.addConstraint(Sketcher.Constraint("Tangent", 6, 2, 7, 2))
sketch7.addConstraint(Sketcher.Constraint("Coincident", 7, 1, 0, 1))
sketch7.addConstraint(Sketcher.Constraint("Horizontal", 2))
sketch7.addConstraint(Sketcher.Constraint("Horizontal", 6))
sketch7.addConstraint(Sketcher.Constraint("Equal", 1, 3))
sketch7.addConstraint(Sketcher.Constraint("Equal", 3, 5))
sketch7.addConstraint(Sketcher.Constraint("Equal", 5, 7))
sketch7.addConstraint(Sketcher.Constraint("Symmetric", 0, 2, 3, 1, -2))
sketch7.addConstraint(Sketcher.Constraint("Symmetric", 4, 2, 7, 1, -2))
sketch7.addConstraint(Sketcher.Constraint("Horizontal", 3, 3, 0, 2))
sketch7.addConstraint(Sketcher.Constraint("Horizontal", 7, 3, 4, 2))
sketch7.addConstraint(Sketcher.Constraint("Radius", 1, Q("7.5 mm")))
sketch7.addConstraint(Sketcher.Constraint("DistanceX", 2, 2, 2, 1, Q("58 mm")))
sketch7.addConstraint(Sketcher.Constraint("DistanceX", 6, 1, 6, 2, Q("52 mm")))
sketch7.addConstraint(Sketcher.Constraint("DistanceY", 1, 3, -1, 1, Q("54 mm")))
sketch7.addConstraint(Sketcher.Constraint("DistanceY", -1, 1, 5, 3, Q("54 mm")))
sketch7.setExpression("Constraints[17]", "Params.sketch7_radius")
sketch7.setExpression("Constraints[18]", "Params.sketch7_width")
sketch7.setExpression("Constraints[19]", "Params.sketch7_width2")
pad2 = body2.newObject("PartDesign::Pad", "Pad001")
pad2.Profile = sketch7
pad2.setExpression("Length", "Params.pad2_length")
pad2.Reversed = True

# Sketch on XY plane
sketch8 = body2.newObject("Sketcher::SketchObject", "Sketch007")
sketch8.AttachmentSupport = (doc.getObject("XY_Plane001"), [""])
sketch8.MapMode = "FlatFace"
sketch8.AttachmentOffset = App.Placement(Vector(0, 0, -20.2), App.Rotation())
sketch8.addGeometry(Part.Circle(Vector(23.5, 51.5, 0), Vector(0, 0, 1), 3.5), False)
sketch8.addGeometry(Part.Circle(Vector(23.5, 51.5, 0), Vector(0, 0, 1), 2), False)
sketch8.addGeometry(Part.Circle(Vector(26.5, -51.5, 0), Vector(0, 0, 1), 3.5), False)
sketch8.addGeometry(Part.Circle(Vector(26.5, -51.5, 0), Vector(0, 0, 1), 2), False)
sketch8.addConstraint(Sketcher.Constraint("Coincident", 1, 3, 0, 3))
sketch8.addConstraint(Sketcher.Constraint("Coincident", 3, 3, 2, 3))
sketch8.addConstraint(Sketcher.Constraint("Equal", 0, 2))
sketch8.addConstraint(Sketcher.Constraint("Equal", 1, 3))
sketch8.addConstraint(Sketcher.Constraint("Diameter", 0, Q("7 mm")))
sketch8.addConstraint(Sketcher.Constraint("Diameter", 1, Q("4 mm")))
sketch8.addConstraint(Sketcher.Constraint("DistanceX", 0, 3, 2, 3, Q("3 mm")))
sketch8.addConstraint(Sketcher.Constraint("DistanceY", 2, 3, 0, 3, Q("103 mm")))
sketch8.addConstraint(Sketcher.Constraint("DistanceX", -1, 1, 0, 3, Q("23.5 mm")))
sketch8.addConstraint(Sketcher.Constraint("DistanceY", -1, 1, 0, 3, Q("51.5 mm")))
sketch8.setExpression("Constraints[4]", "Params.sketch8_diameter")
sketch8.setExpression("Constraints[5]", "Params.sketch8_diameter2")
pad3 = body2.newObject("PartDesign::Pad", "Pad002")
pad3.Profile = sketch8
pad3.setExpression("Length", "Params.pad3_length")
doc.recompute()

mirrored3 = body2.newObject("PartDesign::Mirrored", "Mirrored002")
mirrored3.Originals = [pad3]
mirrored3.MirrorPlane = (doc.getObject("YZ_Plane001"), [""])
body2.Tip = mirrored3

# Sketch on XY plane
sketch9 = body2.newObject("Sketcher::SketchObject", "Sketch008")
sketch9.AttachmentSupport = (doc.getObject("XY_Plane001"), [""])
sketch9.MapMode = "FlatFace"
sketch9.AttachmentOffset = App.Placement(Vector(0, 0, 3.3), App.Rotation())
sketch9.addGeometry(Part.Circle(Vector(23.5, 51.5, 0), Vector(0, 0, 1), 3.5), False)
sketch9.addGeometry(Part.Circle(Vector(23.5, 51.5, 0), Vector(0, 0, 1), 2.8), False)
sketch9.addGeometry(Part.Circle(Vector(26.5, -51.5, 0), Vector(0, 0, 1), 3.5), False)
sketch9.addGeometry(Part.Circle(Vector(26.5, -51.5, 0), Vector(0, 0, 1), 2.8), False)
sketch9.addGeometry(Part.Circle(Vector(-26.5, -51.5, 0), Vector(0, 0, 1), 3.5), False)
sketch9.addGeometry(Part.Circle(Vector(-26.5, -51.5, 0), Vector(0, 0, 1), 2.8), False)
sketch9.addGeometry(Part.Circle(Vector(-23.5, 51.5, 0), Vector(0, 0, 1), 3.5), False)
sketch9.addGeometry(Part.Circle(Vector(-23.5, 51.5, 0), Vector(0, 0, 1), 2.8), False)
sketch9.addConstraint(Sketcher.Constraint("Coincident", 1, 3, 0, 3))
sketch9.addConstraint(Sketcher.Constraint("Coincident", 3, 3, 2, 3))
sketch9.addConstraint(Sketcher.Constraint("Coincident", 5, 3, 4, 3))
sketch9.addConstraint(Sketcher.Constraint("Coincident", 7, 3, 6, 3))
sketch9.addConstraint(Sketcher.Constraint("Equal", 0, 2))
sketch9.addConstraint(Sketcher.Constraint("Equal", 1, 3))
sketch9.addConstraint(Sketcher.Constraint("Equal", 2, 4))
sketch9.addConstraint(Sketcher.Constraint("Equal", 3, 5))
sketch9.addConstraint(Sketcher.Constraint("Equal", 4, 6))
sketch9.addConstraint(Sketcher.Constraint("Equal", 5, 7))
sketch9.addConstraint(Sketcher.Constraint("Symmetric", 2, 3, 4, 3, -2))
sketch9.addConstraint(Sketcher.Constraint("Symmetric", 0, 3, 6, 3, -2))
sketch9.addConstraint(Sketcher.Constraint("Diameter", 0, Q("7 mm")))
sketch9.addConstraint(Sketcher.Constraint("Diameter", 1, Q("5.5 mm")))
sketch9.addConstraint(Sketcher.Constraint("DistanceX", 0, 3, 2, 3, Q("3 mm")))
sketch9.addConstraint(Sketcher.Constraint("DistanceY", 2, 3, 0, 3, Q("103 mm")))
sketch9.addConstraint(Sketcher.Constraint("DistanceX", 4, 3, 2, 3, Q("53 mm")))
sketch9.addConstraint(Sketcher.Constraint("DistanceY", -1, 1, 0, 3, Q("51.5 mm")))
sketch9.setExpression("Constraints[12]", "Params.sketch9_diameter")
sketch9.setExpression("Constraints[13]", "Params.sketch9_diameter2")
pocket2 = body2.newObject("PartDesign::Pocket", "Pocket001")
pocket2.Profile = sketch9
pocket2.setExpression("Length", "Params.pocket2_length")

doc.recompute()
